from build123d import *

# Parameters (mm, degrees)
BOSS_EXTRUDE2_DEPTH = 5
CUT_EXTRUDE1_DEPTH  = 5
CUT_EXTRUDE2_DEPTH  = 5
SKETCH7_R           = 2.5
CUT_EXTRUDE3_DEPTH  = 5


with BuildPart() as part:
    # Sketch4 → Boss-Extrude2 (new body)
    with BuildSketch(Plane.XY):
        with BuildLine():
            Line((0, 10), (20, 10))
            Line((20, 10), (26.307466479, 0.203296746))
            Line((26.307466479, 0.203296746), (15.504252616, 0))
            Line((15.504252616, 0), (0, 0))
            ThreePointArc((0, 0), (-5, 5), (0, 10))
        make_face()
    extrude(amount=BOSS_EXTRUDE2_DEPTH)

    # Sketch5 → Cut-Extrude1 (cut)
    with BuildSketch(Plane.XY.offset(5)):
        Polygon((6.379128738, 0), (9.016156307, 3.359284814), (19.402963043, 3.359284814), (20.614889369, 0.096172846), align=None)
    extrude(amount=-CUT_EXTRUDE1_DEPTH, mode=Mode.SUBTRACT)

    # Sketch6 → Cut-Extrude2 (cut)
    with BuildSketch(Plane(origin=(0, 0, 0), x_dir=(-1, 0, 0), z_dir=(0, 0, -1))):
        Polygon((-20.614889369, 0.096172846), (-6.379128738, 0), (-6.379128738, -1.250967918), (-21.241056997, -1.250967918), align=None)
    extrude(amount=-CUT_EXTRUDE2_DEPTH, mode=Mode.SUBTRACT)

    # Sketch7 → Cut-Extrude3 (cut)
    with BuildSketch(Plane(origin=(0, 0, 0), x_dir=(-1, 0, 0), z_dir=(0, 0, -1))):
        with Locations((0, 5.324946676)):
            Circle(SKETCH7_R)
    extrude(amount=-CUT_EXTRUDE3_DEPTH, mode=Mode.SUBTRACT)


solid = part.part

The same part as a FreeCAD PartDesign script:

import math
import FreeCAD as App
import Part
import Sketcher

V = App.Vector

doc = App.newDocument("Part")
params = doc.addObject("Spreadsheet::Sheet", "Params")
for row, (alias, value) in enumerate([
    ("sketch1_radius", "5 mm"),
    ("sketch1_width", "20 mm"),
    ("pad1_length", "5 mm"),
    ("pocket1_length", "5 mm"),
    ("pocket2_length", "5 mm"),
    ("sketch4_diameter", "5 mm"),
    ("pocket3_length", "5 mm"),
], start=1):
    params.set(f"A{row}", alias)
    params.set(f"B{row}", "=" + value)
    params.setAlias(f"B{row}", alias)

body = doc.addObject("PartDesign::Body", "Body")
body.AllowCompound = True

# Sketch on XY plane
sketch1 = body.newObject("Sketcher::SketchObject", "Sketch")
sketch1.AttachmentSupport = (doc.getObject("XY_Plane"), [""])
sketch1.MapMode = "FlatFace"
sketch1.addGeometry(Part.LineSegment(V(20, 10, 0), V(0, 10, 0)), False)
sketch1.addGeometry(Part.ArcOfCircle(Part.Circle(V(0, 5, 0), V(0, 0, 1), 5), math.radians(90), math.radians(270)), False)
sketch1.addGeometry(Part.LineSegment(V(0, 0, 0), V(16, 0, 0)), False)
sketch1.addGeometry(Part.LineSegment(V(16, 0, 0), V(26, 0, 0)), False)
sketch1.addGeometry(Part.LineSegment(V(26, 0, 0), V(20, 10, 0)), False)
sketch1.addConstraint(Sketcher.Constraint("Tangent", 0, 2, 1, 1))
sketch1.addConstraint(Sketcher.Constraint("Tangent", 1, 2, 2, 1))
sketch1.addConstraint(Sketcher.Constraint("Coincident", 2, 2, 3, 1))
sketch1.addConstraint(Sketcher.Constraint("Coincident", 3, 2, 4, 1))
sketch1.addConstraint(Sketcher.Constraint("Coincident", 4, 2, 0, 1))
sketch1.addConstraint(Sketcher.Constraint("Horizontal", 0))
sketch1.addConstraint(Sketcher.Constraint("Horizontal", 2))
sketch1.addConstraint(Sketcher.Constraint("Coincident", 1, 2, -1, 1))
sketch1.addConstraint(Sketcher.Constraint("Radius", 1, 5.0))
sketch1.addConstraint(Sketcher.Constraint("DistanceX", 0, 2, 0, 1, 20.0))
sketch1.addConstraint(Sketcher.Constraint("Distance", 4, 11.651589))
sketch1.addConstraint(Sketcher.Constraint("DistanceX", 2, 1, 2, 2, 15.504253))
sketch1.addConstraint(Sketcher.Constraint("Distance", 3, 10.805127))
sketch1.setExpression("Constraints[8]", "Params.sketch1_radius")
sketch1.setExpression("Constraints[9]", "Params.sketch1_width")
pad1 = body.newObject("PartDesign::Pad", "Pad")
pad1.Profile = sketch1
pad1.setExpression("Length", "Params.pad1_length")

# Sketch on XY plane
sketch2 = body.newObject("Sketcher::SketchObject", "Sketch001")
sketch2.AttachmentSupport = (doc.getObject("XY_Plane"), [""])
sketch2.MapMode = "FlatFace"
sketch2.AttachmentOffset = App.Placement(V(0, 0, 5), App.Rotation())
sketch2.addGeometry(Part.LineSegment(V(9, 3.4, 0), V(6.4, 0, 0)), False)
sketch2.addGeometry(Part.LineSegment(V(6.4, 0, 0), V(20.6, 0.1, 0)), False)
sketch2.addGeometry(Part.LineSegment(V(20.6, 0.1, 0), V(19.4, 3.4, 0)), False)
sketch2.addGeometry(Part.LineSegment(V(19.4, 3.4, 0), V(9, 3.4, 0)), False)
sketch2.addConstraint(Sketcher.Constraint("Coincident", 0, 2, 1, 1))
sketch2.addConstraint(Sketcher.Constraint("Coincident", 1, 2, 2, 1))
sketch2.addConstraint(Sketcher.Constraint("Coincident", 2, 2, 3, 1))
sketch2.addConstraint(Sketcher.Constraint("Coincident", 3, 2, 0, 1))
sketch2.addConstraint(Sketcher.Constraint("Horizontal", 3))
sketch2.addConstraint(Sketcher.Constraint("PointOnObject", 0, 2, -1))
sketch2.addConstraint(Sketcher.Constraint("Distance", 2, 3.4809))
sketch2.addConstraint(Sketcher.Constraint("Distance", 0, 4.27068))
sketch2.addConstraint(Sketcher.Constraint("DistanceX", 3, 2, 3, 1, 10.386807))
sketch2.addConstraint(Sketcher.Constraint("DistanceX", -1, 1, 0, 2, 6.379129))
sketch2.addConstraint(Sketcher.Constraint("DistanceX", -1, 1, 1, 2, 20.614889))
sketch2.addConstraint(Sketcher.Constraint("DistanceY", 1, 2, 2, 2, 3.263112))
pocket1 = body.newObject("PartDesign::Pocket", "Pocket")
pocket1.Profile = sketch2
pocket1.setExpression("Length", "Params.pocket1_length")

# Sketch on XY plane
sketch3 = body.newObject("Sketcher::SketchObject", "Sketch002")
sketch3.AttachmentSupport = (doc.getObject("XY_Plane"), [""])
sketch3.MapMode = "FlatFace"
sketch3.addGeometry(Part.LineSegment(V(6.4, 0, 0), V(20.6, 0.1, 0)), False)
sketch3.addGeometry(Part.LineSegment(V(20.6, 0.1, 0), V(21.2, -1.3, 0)), False)
sketch3.addGeometry(Part.LineSegment(V(21.2, -1.3, 0), V(6.4, -1.3, 0)), False)
sketch3.addGeometry(Part.LineSegment(V(6.4, -1.3, 0), V(6.4, 0, 0)), False)
sketch3.addConstraint(Sketcher.Constraint("Coincident", 0, 2, 1, 1))
sketch3.addConstraint(Sketcher.Constraint("Coincident", 1, 2, 2, 1))
sketch3.addConstraint(Sketcher.Constraint("Coincident", 2, 2, 3, 1))
sketch3.addConstraint(Sketcher.Constraint("Coincident", 3, 2, 0, 1))
sketch3.addConstraint(Sketcher.Constraint("Horizontal", 2))
sketch3.addConstraint(Sketcher.Constraint("Vertical", 3))
sketch3.addConstraint(Sketcher.Constraint("PointOnObject", 3, 2, -1))
sketch3.addConstraint(Sketcher.Constraint("DistanceX", 2, 2, 2, 1, 14.861928))
sketch3.addConstraint(Sketcher.Constraint("DistanceY", 3, 1, 3, 2, 1.250968))
sketch3.addConstraint(Sketcher.Constraint("DistanceX", -1, 1, 0, 2, 20.614889))
sketch3.addConstraint(Sketcher.Constraint("DistanceX", -1, 1, 2, 2, 6.379129))
sketch3.addConstraint(Sketcher.Constraint("DistanceY", 1, 2, 0, 2, 1.347141))
pocket2 = body.newObject("PartDesign::Pocket", "Pocket001")
pocket2.Profile = sketch3
pocket2.setExpression("Length", "Params.pocket2_length")
pocket2.Reversed = True

# Sketch on XY plane
sketch4 = body.newObject("Sketcher::SketchObject", "Sketch003")
sketch4.AttachmentSupport = (doc.getObject("XY_Plane"), [""])
sketch4.MapMode = "FlatFace"
sketch4.addGeometry(Part.Circle(V(0, 5.3, 0), V(0, 0, 1), 2.5), False)
sketch4.addConstraint(Sketcher.Constraint("PointOnObject", 0, 3, -2))
sketch4.addConstraint(Sketcher.Constraint("Diameter", 0, 5.0))
sketch4.addConstraint(Sketcher.Constraint("DistanceY", -1, 1, 0, 3, 5.324947))
sketch4.setExpression("Constraints[1]", "Params.sketch4_diameter")
pocket3 = body.newObject("PartDesign::Pocket", "Pocket002")
pocket3.Profile = sketch4
pocket3.setExpression("Length", "Params.pocket3_length")
pocket3.Reversed = True

doc.recompute()
